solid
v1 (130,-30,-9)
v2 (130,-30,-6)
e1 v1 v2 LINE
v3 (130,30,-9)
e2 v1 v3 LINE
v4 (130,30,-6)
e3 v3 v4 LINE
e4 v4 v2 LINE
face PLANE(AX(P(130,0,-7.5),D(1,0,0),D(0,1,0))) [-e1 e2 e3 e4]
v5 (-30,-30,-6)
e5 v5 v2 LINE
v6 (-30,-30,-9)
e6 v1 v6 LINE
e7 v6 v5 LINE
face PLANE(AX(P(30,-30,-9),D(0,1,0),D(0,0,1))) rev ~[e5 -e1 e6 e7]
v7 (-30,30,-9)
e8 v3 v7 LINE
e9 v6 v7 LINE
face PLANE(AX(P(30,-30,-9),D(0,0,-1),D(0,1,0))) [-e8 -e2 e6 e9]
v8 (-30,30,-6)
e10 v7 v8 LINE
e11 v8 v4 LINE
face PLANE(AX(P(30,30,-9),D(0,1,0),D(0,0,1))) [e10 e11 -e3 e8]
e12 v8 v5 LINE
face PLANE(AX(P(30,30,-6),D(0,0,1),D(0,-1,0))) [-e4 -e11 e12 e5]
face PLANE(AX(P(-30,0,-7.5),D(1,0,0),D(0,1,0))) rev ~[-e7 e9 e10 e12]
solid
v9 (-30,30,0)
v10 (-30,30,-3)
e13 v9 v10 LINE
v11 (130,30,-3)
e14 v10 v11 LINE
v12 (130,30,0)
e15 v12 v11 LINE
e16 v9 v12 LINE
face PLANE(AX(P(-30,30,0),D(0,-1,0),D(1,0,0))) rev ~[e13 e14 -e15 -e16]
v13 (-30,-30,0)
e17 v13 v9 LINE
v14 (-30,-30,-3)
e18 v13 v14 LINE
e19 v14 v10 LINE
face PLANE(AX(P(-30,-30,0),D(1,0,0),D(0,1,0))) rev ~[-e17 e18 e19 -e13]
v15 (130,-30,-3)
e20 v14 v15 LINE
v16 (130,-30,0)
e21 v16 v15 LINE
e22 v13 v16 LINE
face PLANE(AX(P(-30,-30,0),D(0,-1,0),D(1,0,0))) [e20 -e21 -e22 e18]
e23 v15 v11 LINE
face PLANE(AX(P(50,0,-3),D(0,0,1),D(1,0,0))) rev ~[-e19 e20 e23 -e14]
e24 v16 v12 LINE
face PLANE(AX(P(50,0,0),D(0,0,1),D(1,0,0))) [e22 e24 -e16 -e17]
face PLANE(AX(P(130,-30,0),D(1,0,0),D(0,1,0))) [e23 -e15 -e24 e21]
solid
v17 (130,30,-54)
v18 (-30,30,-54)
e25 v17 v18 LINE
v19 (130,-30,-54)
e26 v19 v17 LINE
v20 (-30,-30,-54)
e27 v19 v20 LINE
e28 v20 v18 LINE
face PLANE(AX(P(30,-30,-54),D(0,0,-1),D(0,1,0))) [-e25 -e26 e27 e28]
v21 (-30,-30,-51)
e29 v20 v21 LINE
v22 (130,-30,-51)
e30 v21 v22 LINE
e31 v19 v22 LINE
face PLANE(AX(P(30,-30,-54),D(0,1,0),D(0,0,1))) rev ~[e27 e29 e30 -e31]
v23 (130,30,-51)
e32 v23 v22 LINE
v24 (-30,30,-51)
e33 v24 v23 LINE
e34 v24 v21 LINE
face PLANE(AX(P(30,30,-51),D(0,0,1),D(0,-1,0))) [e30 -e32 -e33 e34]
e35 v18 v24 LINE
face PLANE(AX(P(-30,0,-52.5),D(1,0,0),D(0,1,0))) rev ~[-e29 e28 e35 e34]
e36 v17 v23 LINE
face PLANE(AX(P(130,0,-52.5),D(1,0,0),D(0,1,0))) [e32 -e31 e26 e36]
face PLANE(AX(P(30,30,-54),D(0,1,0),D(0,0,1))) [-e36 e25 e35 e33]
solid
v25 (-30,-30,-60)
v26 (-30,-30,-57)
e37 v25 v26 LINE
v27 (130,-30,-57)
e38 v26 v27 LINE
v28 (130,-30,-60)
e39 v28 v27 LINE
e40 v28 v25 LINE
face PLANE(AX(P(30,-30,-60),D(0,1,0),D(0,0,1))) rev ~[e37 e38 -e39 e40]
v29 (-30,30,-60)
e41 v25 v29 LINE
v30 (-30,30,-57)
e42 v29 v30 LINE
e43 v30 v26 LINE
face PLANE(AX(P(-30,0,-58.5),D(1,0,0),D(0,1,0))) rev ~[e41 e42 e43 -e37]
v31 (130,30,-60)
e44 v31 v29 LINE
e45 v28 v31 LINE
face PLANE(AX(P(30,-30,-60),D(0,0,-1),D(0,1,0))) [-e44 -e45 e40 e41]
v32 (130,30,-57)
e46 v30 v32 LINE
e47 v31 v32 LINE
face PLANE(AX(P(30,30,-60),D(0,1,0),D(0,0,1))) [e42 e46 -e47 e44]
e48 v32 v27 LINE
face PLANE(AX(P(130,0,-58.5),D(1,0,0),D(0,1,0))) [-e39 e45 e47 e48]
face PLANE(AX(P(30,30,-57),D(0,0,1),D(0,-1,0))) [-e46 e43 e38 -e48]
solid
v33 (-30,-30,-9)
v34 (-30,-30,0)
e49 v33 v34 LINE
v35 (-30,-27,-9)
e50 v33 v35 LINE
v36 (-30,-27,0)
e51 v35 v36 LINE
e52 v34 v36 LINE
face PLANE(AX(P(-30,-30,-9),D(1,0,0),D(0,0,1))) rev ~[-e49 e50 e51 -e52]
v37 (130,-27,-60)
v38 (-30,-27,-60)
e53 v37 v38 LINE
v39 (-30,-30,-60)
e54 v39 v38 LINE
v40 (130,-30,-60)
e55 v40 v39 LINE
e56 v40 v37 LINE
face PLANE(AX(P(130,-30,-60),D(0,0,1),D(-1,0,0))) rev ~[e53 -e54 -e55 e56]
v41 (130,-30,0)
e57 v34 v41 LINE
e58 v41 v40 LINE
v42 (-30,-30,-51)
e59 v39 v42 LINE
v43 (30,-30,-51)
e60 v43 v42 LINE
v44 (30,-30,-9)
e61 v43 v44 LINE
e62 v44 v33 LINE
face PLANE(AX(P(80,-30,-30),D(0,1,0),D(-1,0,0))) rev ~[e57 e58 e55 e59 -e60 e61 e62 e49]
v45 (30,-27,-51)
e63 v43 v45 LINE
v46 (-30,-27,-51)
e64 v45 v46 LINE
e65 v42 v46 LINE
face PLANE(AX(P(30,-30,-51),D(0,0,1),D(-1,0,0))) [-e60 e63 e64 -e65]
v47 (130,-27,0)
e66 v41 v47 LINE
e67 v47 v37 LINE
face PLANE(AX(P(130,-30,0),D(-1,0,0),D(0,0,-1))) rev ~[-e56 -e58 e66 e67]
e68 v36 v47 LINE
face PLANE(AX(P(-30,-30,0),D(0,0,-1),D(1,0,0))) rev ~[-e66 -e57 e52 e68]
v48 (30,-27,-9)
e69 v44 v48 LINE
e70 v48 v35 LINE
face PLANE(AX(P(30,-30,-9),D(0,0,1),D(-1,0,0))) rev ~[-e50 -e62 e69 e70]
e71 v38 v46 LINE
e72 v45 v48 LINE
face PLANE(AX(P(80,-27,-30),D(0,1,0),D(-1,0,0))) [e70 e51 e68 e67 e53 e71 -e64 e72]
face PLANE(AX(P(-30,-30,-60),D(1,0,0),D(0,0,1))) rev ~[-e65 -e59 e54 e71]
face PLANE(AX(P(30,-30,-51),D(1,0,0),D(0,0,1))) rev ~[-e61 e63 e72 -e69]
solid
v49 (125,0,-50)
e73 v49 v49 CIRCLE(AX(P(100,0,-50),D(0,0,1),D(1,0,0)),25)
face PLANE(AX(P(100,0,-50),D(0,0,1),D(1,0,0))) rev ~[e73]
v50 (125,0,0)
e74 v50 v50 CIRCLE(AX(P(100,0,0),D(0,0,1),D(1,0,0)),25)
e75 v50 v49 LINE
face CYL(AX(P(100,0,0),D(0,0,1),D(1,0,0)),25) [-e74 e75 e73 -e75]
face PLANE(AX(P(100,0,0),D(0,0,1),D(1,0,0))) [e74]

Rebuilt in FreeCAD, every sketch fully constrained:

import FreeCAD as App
import Part
import Sketcher
from FreeCAD import Vector
Q = App.Units.Quantity

doc = App.newDocument("Part")
params = doc.addObject("Spreadsheet::Sheet", "Params")
for row, (alias, value) in enumerate([
    ("sketch1_diameter", "50 mm"),
    ("pad1_length", "50 mm"),
    ("sketch2_width", "160 mm"),
    ("sketch2_height", "60 mm"),
    ("pad2_length", "3 mm"),
    ("sketch3_width", "60 mm"),
    ("sketch3_height", "3 mm"),
    ("pad3_length", "100 mm"),
    ("pad3_length2", "60 mm"),
    ("sketch4_width", "60 mm"),
    ("sketch4_height", "3 mm"),
    ("pad4_length", "100 mm"),
    ("pad4_length2", "60 mm"),
    ("sketch5_width", "60 mm"),
    ("sketch5_height", "3 mm"),
    ("pad5_length", "100 mm"),
    ("pad5_length2", "60 mm"),
    ("sketch6_width", "160 mm"),
    ("sketch6_width2", "60 mm"),
    ("sketch6_height", "9 mm"),
    ("pad6_length", "3 mm"),
], start=1):
    params.set(f"A{row}", alias)
    params.set(f"B{row}", "=" + value)
    params.setAlias(f"B{row}", alias)

body = doc.addObject("PartDesign::Body", "Body")

sketch1 = body.newObject("Sketcher::SketchObject", "Sketch")
sketch1.AttachmentSupport = (doc.getObject("XY_Plane"), [""])
sketch1.MapMode = "FlatFace"
sketch1.addGeometry(Part.Circle(Vector(100, 0, 0), Vector(0, 0, 1), 25), False)
sketch1.addConstraint([
    Sketcher.Constraint("PointOnObject", 0, 3, -1),
    Sketcher.Constraint("Diameter", 0, Q("50 mm")),
    Sketcher.Constraint("DistanceX", -1, 1, 0, 3, Q("100 mm")),
])
sketch1.setExpression("Constraints[1]", "Params.sketch1_diameter")
pad1 = body.newObject("PartDesign::Pad", "Pad")
pad1.Profile = sketch1
pad1.setExpression("Length", "Params.pad1_length")
pad1.Reversed = True
body2 = doc.addObject("PartDesign::Body", "Body001")

sketch2 = body2.newObject("Sketcher::SketchObject", "Sketch001")
sketch2.AttachmentSupport = (doc.getObject("XY_Plane001"), [""])
sketch2.MapMode = "FlatFace"
sketch2.addGeometry([
    Part.LineSegment(Vector(-30, 30, 0), Vector(-30, -30, 0)),
    Part.LineSegment(Vector(-30, -30, 0), Vector(130, -30, 0)),
    Part.LineSegment(Vector(130, -30, 0), Vector(130, 30, 0)),
    Part.LineSegment(Vector(130, 30, 0), Vector(-30, 30, 0)),
], False)
sketch2.addConstraint([
    Sketcher.Constraint("Coincident", 0, 2, 1, 1),
    Sketcher.Constraint("Coincident", 1, 2, 2, 1),
    Sketcher.Constraint("Coincident", 2, 2, 3, 1),
    Sketcher.Constraint("Coincident", 3, 2, 0, 1),
    Sketcher.Constraint("Vertical", 0),
    Sketcher.Constraint("Horizontal", 1),
    Sketcher.Constraint("Vertical", 2),
    Sketcher.Constraint("Horizontal", 3),
    Sketcher.Constraint("DistanceX", 1, 1, 1, 2, Q("160 mm")),
    Sketcher.Constraint("DistanceY", 0, 2, 0, 1, Q("60 mm")),
    Sketcher.Constraint("DistanceX", 0, 2, -1, 1, Q("30 mm")),
    Sketcher.Constraint("DistanceY", 0, 2, -1, 1, Q("30 mm")),
])
sketch2.setExpression("Constraints[8]", "Params.sketch2_width")
sketch2.setExpression("Constraints[9]", "Params.sketch2_height")
pad2 = body2.newObject("PartDesign::Pad", "Pad001")
pad2.Profile = sketch2
pad2.setExpression("Length", "Params.pad2_length")
pad2.Reversed = True
body3 = doc.addObject("PartDesign::Body", "Body002")

sketch3 = body3.newObject("Sketcher::SketchObject", "Sketch002")
sketch3.AttachmentSupport = (doc.getObject("YZ_Plane002"), [""])
sketch3.MapMode = "FlatFace"
sketch3.AttachmentOffset = App.Placement(Vector(0, 0, 30), App.Rotation())
sketch3.addGeometry([
    Part.LineSegment(Vector(30, -9, 0), Vector(30, -6, 0)),
    Part.LineSegment(Vector(30, -6, 0), Vector(-30, -6, 0)),
    Part.LineSegment(Vector(-30, -6, 0), Vector(-30, -9, 0)),
    Part.LineSegment(Vector(-30, -9, 0), Vector(30, -9, 0)),
], False)
sketch3.addConstraint([
    Sketcher.Constraint("Coincident", 0, 2, 1, 1),
    Sketcher.Constraint("Coincident", 1, 2, 2, 1),
    Sketcher.Constraint("Coincident", 2, 2, 3, 1),
    Sketcher.Constraint("Coincident", 3, 2, 0, 1),
    Sketcher.Constraint("Vertical", 0),
    Sketcher.Constraint("Horizontal", 1),
    Sketcher.Constraint("Vertical", 2),
    Sketcher.Constraint("Horizontal", 3),
    Sketcher.Constraint("DistanceX", 1, 2, 1, 1, Q("60 mm")),
    Sketcher.Constraint("DistanceY", 0, 1, 0, 2, Q("3 mm")),
    Sketcher.Constraint("DistanceX", -1, 1, 0, 2, Q("30 mm")),
    Sketcher.Constraint("DistanceY", 0, 2, -1, 1, Q("6 mm")),
])
sketch3.setExpression("Constraints[8]", "Params.sketch3_width")
sketch3.setExpression("Constraints[9]", "Params.sketch3_height")
pad3 = body3.newObject("PartDesign::Pad", "Pad002")
pad3.Profile = sketch3
pad3.Type = "TwoLengths"
pad3.setExpression("Length", "Params.pad3_length")
pad3.setExpression("Length2", "Params.pad3_length2")
body4 = doc.addObject("PartDesign::Body", "Body003")

sketch4 = body4.newObject("Sketcher::SketchObject", "Sketch003")
sketch4.AttachmentSupport = (doc.getObject("YZ_Plane003"), [""])
sketch4.MapMode = "FlatFace"
sketch4.AttachmentOffset = App.Placement(Vector(0, 0, 30), App.Rotation())
sketch4.addGeometry([
    Part.LineSegment(Vector(30, -54, 0), Vector(30, -51, 0)),
    Part.LineSegment(Vector(30, -51, 0), Vector(-30, -51, 0)),
    Part.LineSegment(Vector(-30, -51, 0), Vector(-30, -54, 0)),
    Part.LineSegment(Vector(-30, -54, 0), Vector(30, -54, 0)),
], False)
sketch4.addConstraint([
    Sketcher.Constraint("Coincident", 0, 2, 1, 1),
    Sketcher.Constraint("Coincident", 1, 2, 2, 1),
    Sketcher.Constraint("Coincident", 2, 2, 3, 1),
    Sketcher.Constraint("Coincident", 3, 2, 0, 1),
    Sketcher.Constraint("Vertical", 0),
    Sketcher.Constraint("Horizontal", 1),
    Sketcher.Constraint("Vertical", 2),
    Sketcher.Constraint("Horizontal", 3),
    Sketcher.Constraint("DistanceX", 1, 2, 1, 1, Q("60 mm")),
    Sketcher.Constraint("DistanceY", 0, 1, 0, 2, Q("3 mm")),
    Sketcher.Constraint("DistanceX", -1, 1, 0, 2, Q("30 mm")),
    Sketcher.Constraint("DistanceY", 0, 2, -1, 1, Q("51 mm")),
])
sketch4.setExpression("Constraints[8]", "Params.sketch4_width")
sketch4.setExpression("Constraints[9]", "Params.sketch4_height")
pad4 = body4.newObject("PartDesign::Pad", "Pad003")
pad4.Profile = sketch4
pad4.Type = "TwoLengths"
pad4.setExpression("Length", "Params.pad4_length")
pad4.setExpression("Length2", "Params.pad4_length2")
body5 = doc.addObject("PartDesign::Body", "Body004")

sketch5 = body5.newObject("Sketcher::SketchObject", "Sketch004")
sketch5.AttachmentSupport = (doc.getObject("YZ_Plane004"), [""])
sketch5.MapMode = "FlatFace"
sketch5.AttachmentOffset = App.Placement(Vector(0, 0, 30), App.Rotation())
sketch5.addGeometry([
    Part.LineSegment(Vector(30, -60, 0), Vector(30, -57, 0)),
    Part.LineSegment(Vector(30, -57, 0), Vector(-30, -57, 0)),
    Part.LineSegment(Vector(-30, -57, 0), Vector(-30, -60, 0)),
    Part.LineSegment(Vector(-30, -60, 0), Vector(30, -60, 0)),
], False)
sketch5.addConstraint([
    Sketcher.Constraint("Coincident", 0, 2, 1, 1),
    Sketcher.Constraint("Coincident", 1, 2, 2, 1),
    Sketcher.Constraint("Coincident", 2, 2, 3, 1),
    Sketcher.Constraint("Coincident", 3, 2, 0, 1),
    Sketcher.Constraint("Vertical", 0),
    Sketcher.Constraint("Horizontal", 1),
    Sketcher.Constraint("Vertical", 2),
    Sketcher.Constraint("Horizontal", 3),
    Sketcher.Constraint("DistanceX", 1, 2, 1, 1, Q("60 mm")),
    Sketcher.Constraint("DistanceY", 0, 1, 0, 2, Q("3 mm")),
    Sketcher.Constraint("DistanceX", -1, 1, 0, 2, Q("30 mm")),
    Sketcher.Constraint("DistanceY", 0, 2, -1, 1, Q("57 mm")),
])
sketch5.setExpression("Constraints[8]", "Params.sketch5_width")
sketch5.setExpression("Constraints[9]", "Params.sketch5_height")
pad5 = body5.newObject("PartDesign::Pad", "Pad004")
pad5.Profile = sketch5
pad5.Type = "TwoLengths"
pad5.setExpression("Length", "Params.pad5_length")
pad5.setExpression("Length2", "Params.pad5_length2")
body6 = doc.addObject("PartDesign::Body", "Body005")

sketch6 = body6.newObject("Sketcher::SketchObject", "Sketch005")
sketch6.AttachmentSupport = (doc.getObject("XZ_Plane005"), [""])
sketch6.MapMode = "FlatFace"
sketch6.AttachmentOffset = App.Placement(Vector(0, 0, 30), App.Rotation())
sketch6.addGeometry([
    Part.LineSegment(Vector(130, 0, 0), Vector(130, -60, 0)),
    Part.LineSegment(Vector(130, -60, 0), Vector(-30, -60, 0)),
    Part.LineSegment(Vector(-30, -60, 0), Vector(-30, -51, 0)),
    Part.LineSegment(Vector(-30, -51, 0), Vector(30, -51, 0)),
    Part.LineSegment(Vector(30, -51, 0), Vector(30, -9, 0)),
    Part.LineSegment(Vector(30, -9, 0), Vector(-30, -9, 0)),
    Part.LineSegment(Vector(-30, -9, 0), Vector(-30, 0, 0)),
    Part.LineSegment(Vector(-30, 0, 0), Vector(130, 0, 0)),
], False)
sketch6.addConstraint([
    Sketcher.Constraint("Coincident", 0, 2, 1, 1),
    Sketcher.Constraint("Coincident", 1, 2, 2, 1),
    Sketcher.Constraint("Coincident", 2, 2, 3, 1),
    Sketcher.Constraint("Coincident", 3, 2, 4, 1),
    Sketcher.Constraint("Coincident", 4, 2, 5, 1),
    Sketcher.Constraint("Coincident", 5, 2, 6, 1),
    Sketcher.Constraint("Coincident", 6, 2, 7, 1),
    Sketcher.Constraint("Coincident", 7, 2, 0, 1),
    Sketcher.Constraint("Vertical", 0),
    Sketcher.Constraint("Horizontal", 1),
    Sketcher.Constraint("Vertical", 2),
    Sketcher.Constraint("Horizontal", 3),
    Sketcher.Constraint("Vertical", 4),
    Sketcher.Constraint("Horizontal", 5),
    Sketcher.Constraint("Vertical", 6),
    Sketcher.Constraint("Horizontal", 7),
    Sketcher.Constraint("PointOnObject", 6, 2, -1),
    Sketcher.Constraint("Vertical", 2, 2, 5, 2),
    Sketcher.Constraint("Equal", 5, 0),
    Sketcher.Constraint("Equal", 2, 6),
    Sketcher.Constraint("DistanceX", 1, 2, 1, 1, Q("160 mm")),
    Sketcher.Constraint("DistanceX", 3, 1, 3, 2, Q("60 mm")),
    Sketcher.Constraint("DistanceY", 2, 1, 2, 2, Q("9 mm")),
    Sketcher.Constraint("DistanceX", -1, 1, 0, 2, Q("130 mm")),
])
sketch6.setExpression("Constraints[20]", "Params.sketch6_width")
sketch6.setExpression("Constraints[21]", "Params.sketch6_width2")
sketch6.setExpression("Constraints[22]", "Params.sketch6_height")
pad6 = body6.newObject("PartDesign::Pad", "Pad005")
pad6.Profile = sketch6
pad6.setExpression("Length", "Params.pad6_length")
pad6.Reversed = True

doc.recompute()
